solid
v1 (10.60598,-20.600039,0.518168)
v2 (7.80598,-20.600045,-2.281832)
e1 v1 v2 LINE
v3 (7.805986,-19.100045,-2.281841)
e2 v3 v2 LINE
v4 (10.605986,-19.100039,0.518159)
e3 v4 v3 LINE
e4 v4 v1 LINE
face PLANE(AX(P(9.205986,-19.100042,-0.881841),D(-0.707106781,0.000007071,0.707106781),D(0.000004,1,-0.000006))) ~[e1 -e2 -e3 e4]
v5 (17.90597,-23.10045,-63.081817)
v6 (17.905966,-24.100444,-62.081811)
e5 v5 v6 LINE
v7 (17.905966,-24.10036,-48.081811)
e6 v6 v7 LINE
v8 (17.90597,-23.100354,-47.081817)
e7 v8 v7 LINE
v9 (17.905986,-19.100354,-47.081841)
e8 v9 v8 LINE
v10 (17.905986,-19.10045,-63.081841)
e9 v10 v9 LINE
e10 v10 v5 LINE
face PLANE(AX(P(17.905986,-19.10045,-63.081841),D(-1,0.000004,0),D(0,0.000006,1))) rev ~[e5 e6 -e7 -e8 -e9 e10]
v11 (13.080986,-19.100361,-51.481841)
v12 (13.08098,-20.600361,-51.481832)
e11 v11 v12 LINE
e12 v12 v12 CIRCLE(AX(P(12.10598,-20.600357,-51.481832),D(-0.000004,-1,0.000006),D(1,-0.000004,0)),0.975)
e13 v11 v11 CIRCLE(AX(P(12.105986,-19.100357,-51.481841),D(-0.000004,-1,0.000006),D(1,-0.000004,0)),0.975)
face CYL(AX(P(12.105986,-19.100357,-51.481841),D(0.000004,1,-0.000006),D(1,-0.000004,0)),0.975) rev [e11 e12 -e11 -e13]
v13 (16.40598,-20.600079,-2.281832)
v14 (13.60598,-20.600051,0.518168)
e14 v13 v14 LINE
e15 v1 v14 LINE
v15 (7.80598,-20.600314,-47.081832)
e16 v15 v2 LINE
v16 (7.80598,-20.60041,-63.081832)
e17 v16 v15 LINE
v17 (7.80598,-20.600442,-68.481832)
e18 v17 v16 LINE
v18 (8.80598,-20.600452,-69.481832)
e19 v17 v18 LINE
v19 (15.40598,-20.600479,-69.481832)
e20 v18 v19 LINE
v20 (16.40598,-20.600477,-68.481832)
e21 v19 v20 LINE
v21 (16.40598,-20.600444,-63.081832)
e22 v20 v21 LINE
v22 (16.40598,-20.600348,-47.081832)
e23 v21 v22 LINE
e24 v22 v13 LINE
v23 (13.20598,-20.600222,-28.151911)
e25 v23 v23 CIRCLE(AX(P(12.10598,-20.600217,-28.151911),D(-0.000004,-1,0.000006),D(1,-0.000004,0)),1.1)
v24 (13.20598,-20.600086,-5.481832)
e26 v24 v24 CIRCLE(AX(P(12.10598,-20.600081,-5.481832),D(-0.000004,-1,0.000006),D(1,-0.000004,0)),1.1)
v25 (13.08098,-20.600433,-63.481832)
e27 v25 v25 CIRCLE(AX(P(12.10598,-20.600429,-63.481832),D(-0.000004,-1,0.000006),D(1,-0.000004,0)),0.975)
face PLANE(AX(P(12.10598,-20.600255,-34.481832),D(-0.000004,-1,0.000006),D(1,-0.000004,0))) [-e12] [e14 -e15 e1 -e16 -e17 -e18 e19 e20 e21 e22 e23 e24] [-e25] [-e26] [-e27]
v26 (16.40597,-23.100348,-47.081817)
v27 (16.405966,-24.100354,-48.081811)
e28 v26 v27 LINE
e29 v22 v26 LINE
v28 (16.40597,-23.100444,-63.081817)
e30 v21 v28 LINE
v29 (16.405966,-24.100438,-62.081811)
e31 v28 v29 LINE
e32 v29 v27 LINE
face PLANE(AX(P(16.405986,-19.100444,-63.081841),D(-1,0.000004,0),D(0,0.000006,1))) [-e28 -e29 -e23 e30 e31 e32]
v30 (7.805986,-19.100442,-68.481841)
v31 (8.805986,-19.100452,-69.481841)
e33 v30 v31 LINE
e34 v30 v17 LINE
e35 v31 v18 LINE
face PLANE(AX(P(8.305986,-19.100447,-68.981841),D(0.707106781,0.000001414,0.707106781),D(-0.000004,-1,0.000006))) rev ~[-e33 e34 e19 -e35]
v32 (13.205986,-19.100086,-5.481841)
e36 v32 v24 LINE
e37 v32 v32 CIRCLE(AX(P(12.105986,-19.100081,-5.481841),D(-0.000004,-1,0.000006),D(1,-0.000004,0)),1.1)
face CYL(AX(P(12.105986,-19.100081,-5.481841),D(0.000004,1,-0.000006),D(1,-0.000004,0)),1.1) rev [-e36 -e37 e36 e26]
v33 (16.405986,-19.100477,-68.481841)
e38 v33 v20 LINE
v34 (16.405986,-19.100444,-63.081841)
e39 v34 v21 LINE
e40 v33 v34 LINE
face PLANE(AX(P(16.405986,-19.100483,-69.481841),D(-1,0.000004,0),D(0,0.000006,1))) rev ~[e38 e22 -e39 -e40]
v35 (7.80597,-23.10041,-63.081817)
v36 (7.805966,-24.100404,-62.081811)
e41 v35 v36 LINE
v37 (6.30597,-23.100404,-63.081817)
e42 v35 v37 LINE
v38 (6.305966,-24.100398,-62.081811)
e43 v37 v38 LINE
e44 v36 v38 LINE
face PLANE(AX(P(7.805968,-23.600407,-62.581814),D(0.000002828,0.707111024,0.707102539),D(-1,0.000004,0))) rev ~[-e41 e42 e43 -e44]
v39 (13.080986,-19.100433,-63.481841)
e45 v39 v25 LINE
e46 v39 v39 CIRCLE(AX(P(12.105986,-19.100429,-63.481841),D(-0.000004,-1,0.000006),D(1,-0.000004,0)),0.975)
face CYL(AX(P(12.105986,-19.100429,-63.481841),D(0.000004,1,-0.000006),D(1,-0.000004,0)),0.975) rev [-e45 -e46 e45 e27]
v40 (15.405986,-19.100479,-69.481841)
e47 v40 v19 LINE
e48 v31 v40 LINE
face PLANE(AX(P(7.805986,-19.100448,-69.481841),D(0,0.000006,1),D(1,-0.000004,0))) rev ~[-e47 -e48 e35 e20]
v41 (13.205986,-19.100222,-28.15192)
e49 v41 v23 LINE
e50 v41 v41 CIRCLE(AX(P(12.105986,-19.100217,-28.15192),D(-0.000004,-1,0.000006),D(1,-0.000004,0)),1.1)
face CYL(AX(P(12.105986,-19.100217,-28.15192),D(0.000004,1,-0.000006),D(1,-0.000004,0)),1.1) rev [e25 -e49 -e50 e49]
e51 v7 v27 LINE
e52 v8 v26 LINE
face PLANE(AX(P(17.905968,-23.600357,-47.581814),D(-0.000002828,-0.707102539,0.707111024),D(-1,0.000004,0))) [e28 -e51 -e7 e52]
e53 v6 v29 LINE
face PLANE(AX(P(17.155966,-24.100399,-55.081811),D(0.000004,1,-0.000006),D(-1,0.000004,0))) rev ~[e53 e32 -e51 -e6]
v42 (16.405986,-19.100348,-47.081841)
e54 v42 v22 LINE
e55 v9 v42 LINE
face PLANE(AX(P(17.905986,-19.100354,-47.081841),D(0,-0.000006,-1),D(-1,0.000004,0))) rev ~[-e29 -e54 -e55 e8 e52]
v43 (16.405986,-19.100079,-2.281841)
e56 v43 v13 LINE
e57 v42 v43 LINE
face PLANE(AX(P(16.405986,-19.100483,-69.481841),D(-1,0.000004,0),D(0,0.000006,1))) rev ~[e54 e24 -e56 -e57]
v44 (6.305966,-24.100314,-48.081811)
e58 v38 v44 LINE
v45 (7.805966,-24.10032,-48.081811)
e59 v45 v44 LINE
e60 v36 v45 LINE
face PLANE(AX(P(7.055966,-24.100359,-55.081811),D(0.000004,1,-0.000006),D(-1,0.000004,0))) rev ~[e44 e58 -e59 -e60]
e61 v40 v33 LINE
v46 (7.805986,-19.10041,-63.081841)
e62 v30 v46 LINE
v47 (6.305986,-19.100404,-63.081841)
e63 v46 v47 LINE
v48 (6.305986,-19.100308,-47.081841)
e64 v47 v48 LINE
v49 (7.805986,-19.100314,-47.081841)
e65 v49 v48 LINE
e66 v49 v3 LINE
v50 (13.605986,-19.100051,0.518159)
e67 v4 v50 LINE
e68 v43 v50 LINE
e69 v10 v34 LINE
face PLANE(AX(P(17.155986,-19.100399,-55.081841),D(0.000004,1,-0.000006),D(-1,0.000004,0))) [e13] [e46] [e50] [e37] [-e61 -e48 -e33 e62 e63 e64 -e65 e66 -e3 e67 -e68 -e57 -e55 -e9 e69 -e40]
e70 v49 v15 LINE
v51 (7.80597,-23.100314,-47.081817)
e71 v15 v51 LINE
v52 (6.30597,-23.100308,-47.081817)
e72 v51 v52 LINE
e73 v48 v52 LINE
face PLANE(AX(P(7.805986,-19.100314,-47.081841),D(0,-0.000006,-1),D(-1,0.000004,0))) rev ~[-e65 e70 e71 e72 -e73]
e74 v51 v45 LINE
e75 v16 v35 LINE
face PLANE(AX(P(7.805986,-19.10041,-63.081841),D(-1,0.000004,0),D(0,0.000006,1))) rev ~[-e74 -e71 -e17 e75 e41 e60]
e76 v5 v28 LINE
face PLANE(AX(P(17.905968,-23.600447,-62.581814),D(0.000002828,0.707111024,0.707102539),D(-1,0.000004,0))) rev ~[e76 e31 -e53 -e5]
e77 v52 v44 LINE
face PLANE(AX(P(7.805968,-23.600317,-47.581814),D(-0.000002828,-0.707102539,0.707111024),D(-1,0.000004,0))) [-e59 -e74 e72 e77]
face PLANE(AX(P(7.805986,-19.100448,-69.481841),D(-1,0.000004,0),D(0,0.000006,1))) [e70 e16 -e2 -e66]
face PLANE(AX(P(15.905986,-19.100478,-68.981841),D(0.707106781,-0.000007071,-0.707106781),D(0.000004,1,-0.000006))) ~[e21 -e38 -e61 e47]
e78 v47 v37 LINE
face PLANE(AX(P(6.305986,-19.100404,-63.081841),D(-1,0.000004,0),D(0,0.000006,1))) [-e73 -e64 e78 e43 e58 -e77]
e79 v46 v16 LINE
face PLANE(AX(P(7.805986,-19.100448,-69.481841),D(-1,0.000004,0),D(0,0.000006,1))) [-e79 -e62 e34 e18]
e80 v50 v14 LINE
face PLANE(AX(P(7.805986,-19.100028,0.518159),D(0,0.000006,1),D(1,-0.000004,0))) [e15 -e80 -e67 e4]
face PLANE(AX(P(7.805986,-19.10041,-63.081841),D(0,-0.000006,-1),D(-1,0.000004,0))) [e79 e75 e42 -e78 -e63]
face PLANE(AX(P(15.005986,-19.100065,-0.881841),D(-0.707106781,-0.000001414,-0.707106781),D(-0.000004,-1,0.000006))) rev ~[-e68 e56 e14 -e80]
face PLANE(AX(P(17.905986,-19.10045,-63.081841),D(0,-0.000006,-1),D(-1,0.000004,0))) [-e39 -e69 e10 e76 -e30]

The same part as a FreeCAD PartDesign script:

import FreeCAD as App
import Part
import Sketcher


def edges_at(feature, points):
    """Names of the edges that pass closest to the given points."""
    edges = feature.Shape.Edges
    near = lambda p: min(range(len(edges)), key=lambda i: edges[i].distToShape(Part.Vertex(*p))[0])
    return sorted({f"Edge{near(p) + 1}" for p in points})


def add_polygon(sketch, points):
    """Adds a closed chain of lines whose ends are joined by coincident constraints."""
    first, n = sketch.GeometryCount, len(points)
    for a, b in zip(points, points[1:] + points[:1]):
        sketch.addGeometry(Part.LineSegment(App.Vector(*a, 0), App.Vector(*b, 0)), False)
    for i in range(n):
        sketch.addConstraint(Sketcher.Constraint("Coincident", first + i, 2, first + (i + 1) % n, 1))

doc = App.newDocument("Part")
body = doc.addObject("PartDesign::Body", "Body")

# Sketch on XZ plane
sketch1 = body.newObject("Sketcher::SketchObject", "Sketch")
sketch1.AttachmentSupport = (doc.getObject("XZ_Plane"), [""])
sketch1.MapMode = "FlatFace"
sketch1.AttachmentOffset = App.Placement(App.Vector(0, 0, 19.1), App.Rotation())
add_polygon(sketch1, [(7.8, 0.5), (7.8, -69.5), (16.4, -69.5), (16.4, 0.5)])  # lines 0-3
sketch1.addGeometry(Part.Circle(App.Vector(12.1, -63.5, 0), App.Vector(0, 0, 1), 1), False)  # 4
sketch1.addGeometry(Part.Circle(App.Vector(12.1, -51.5, 0), App.Vector(0, 0, 1), 1), False)  # 5
sketch1.addGeometry(Part.Circle(App.Vector(12.1, -28.2, 0), App.Vector(0, 0, 1), 1.1), False)  # 6
sketch1.addGeometry(Part.Circle(App.Vector(12.1, -5.5, 0), App.Vector(0, 0, 1), 1.1), False)  # 7
sketch1.addConstraint([
    Sketcher.Constraint("Vertical", 0),
    Sketcher.Constraint("Horizontal", 1),
    Sketcher.Constraint("Vertical", 2),
    Sketcher.Constraint("Horizontal", 3),
    Sketcher.Constraint("Equal", 4, 5),
    Sketcher.Constraint("Equal", 6, 7),
    Sketcher.Constraint("Vertical", 4, 3, 5, 3),
    Sketcher.Constraint("Vertical", 5, 3, 6, 3),
    Sketcher.Constraint("Vertical", 6, 3, 7, 3),
    Sketcher.Constraint("Diameter", 6, 2.2),
    Sketcher.Constraint("Diameter", 4, 1.95),
    Sketcher.Constraint("DistanceY", 0, 2, 0, 1, 70.0),
    Sketcher.Constraint("DistanceX", 1, 1, 1, 2, 8.6),
    Sketcher.Constraint("DistanceY", 4, 3, 5, 3, 12.0),
    Sketcher.Constraint("DistanceY", 5, 3, 7, 3, 46.0),
    Sketcher.Constraint("DistanceY", 0, 2, 4, 3, 6.0),
    Sketcher.Constraint("DistanceX", 0, 2, 4, 3, 4.3),
    Sketcher.Constraint("DistanceY", 4, 3, -1, 1, 63.481841),
    Sketcher.Constraint("DistanceY", 6, 3, -1, 1, 28.15192),
    Sketcher.Constraint("DistanceX", -1, 1, 4, 3, 12.105986),
])
pad1 = body.newObject("PartDesign::Pad", "Pad")
pad1.Profile = sketch1
pad1.Length = 1.5

# Sketch on XZ plane
sketch2 = body.newObject("Sketcher::SketchObject", "Sketch001")
sketch2.AttachmentSupport = (doc.getObject("XZ_Plane"), [""])
sketch2.MapMode = "FlatFace"
sketch2.AttachmentOffset = App.Placement(App.Vector(0, 0, 19.1), App.Rotation())
add_polygon(sketch2, [(17.9, -47.1), (17.9, -63.1), (16.4, -63.1), (16.4, -47.1)])  # lines 0-3
add_polygon(sketch2, [(7.8, -47.1), (7.8, -63.1), (6.3, -63.1), (6.3, -47.1)])  # lines 4-7
sketch2.addConstraint([
    Sketcher.Constraint("Vertical", 0),
    Sketcher.Constraint("Horizontal", 1),
    Sketcher.Constraint("Vertical", 2),
    Sketcher.Constraint("Horizontal", 3),
    Sketcher.Constraint("Vertical", 4),
    Sketcher.Constraint("Horizontal", 5),
    Sketcher.Constraint("Vertical", 6),
    Sketcher.Constraint("Horizontal", 7),
    Sketcher.Constraint("Horizontal", 1, 2, 4, 2),
    Sketcher.Constraint("Horizontal", 3, 2, 6, 2),
    Sketcher.Constraint("Equal", 3, 5),
    Sketcher.Constraint("DistanceY", 0, 2, 0, 1, 16.0),
    Sketcher.Constraint("DistanceX", 1, 2, 1, 1, 1.5),
    Sketcher.Constraint("DistanceX", 4, 2, 1, 2, 8.6),
    Sketcher.Constraint("DistanceY", 0, 2, -1, 1, 63.081841),
    Sketcher.Constraint("DistanceX", -1, 1, 0, 2, 17.905986),
])
pad2 = body.newObject("PartDesign::Pad", "Pad001")
pad2.Profile = sketch2
pad2.Length = 5
doc.recompute()

chamfer = body.newObject("PartDesign::Chamfer", "Chamfer")
chamfer.Base = (pad2, edges_at(pad2, [(16.406, -19.85, 0.518), (7.806, -19.85, 0.518)]))
chamfer.Size = 2.8
doc.recompute()

chamfer2 = body.newObject("PartDesign::Chamfer", "Chamfer001")
chamfer2.Base = (chamfer, edges_at(chamfer, [
    (17.156, -24.1, -47.082),
    (17.156, -24.1, -63.082),
    (7.056, -24.1, -63.082),
    (7.056, -24.1, -47.082),
    (16.406, -19.85, -69.482),
    (7.806, -19.85, -69.482),
]))
chamfer2.Size = 1

doc.recompute()
